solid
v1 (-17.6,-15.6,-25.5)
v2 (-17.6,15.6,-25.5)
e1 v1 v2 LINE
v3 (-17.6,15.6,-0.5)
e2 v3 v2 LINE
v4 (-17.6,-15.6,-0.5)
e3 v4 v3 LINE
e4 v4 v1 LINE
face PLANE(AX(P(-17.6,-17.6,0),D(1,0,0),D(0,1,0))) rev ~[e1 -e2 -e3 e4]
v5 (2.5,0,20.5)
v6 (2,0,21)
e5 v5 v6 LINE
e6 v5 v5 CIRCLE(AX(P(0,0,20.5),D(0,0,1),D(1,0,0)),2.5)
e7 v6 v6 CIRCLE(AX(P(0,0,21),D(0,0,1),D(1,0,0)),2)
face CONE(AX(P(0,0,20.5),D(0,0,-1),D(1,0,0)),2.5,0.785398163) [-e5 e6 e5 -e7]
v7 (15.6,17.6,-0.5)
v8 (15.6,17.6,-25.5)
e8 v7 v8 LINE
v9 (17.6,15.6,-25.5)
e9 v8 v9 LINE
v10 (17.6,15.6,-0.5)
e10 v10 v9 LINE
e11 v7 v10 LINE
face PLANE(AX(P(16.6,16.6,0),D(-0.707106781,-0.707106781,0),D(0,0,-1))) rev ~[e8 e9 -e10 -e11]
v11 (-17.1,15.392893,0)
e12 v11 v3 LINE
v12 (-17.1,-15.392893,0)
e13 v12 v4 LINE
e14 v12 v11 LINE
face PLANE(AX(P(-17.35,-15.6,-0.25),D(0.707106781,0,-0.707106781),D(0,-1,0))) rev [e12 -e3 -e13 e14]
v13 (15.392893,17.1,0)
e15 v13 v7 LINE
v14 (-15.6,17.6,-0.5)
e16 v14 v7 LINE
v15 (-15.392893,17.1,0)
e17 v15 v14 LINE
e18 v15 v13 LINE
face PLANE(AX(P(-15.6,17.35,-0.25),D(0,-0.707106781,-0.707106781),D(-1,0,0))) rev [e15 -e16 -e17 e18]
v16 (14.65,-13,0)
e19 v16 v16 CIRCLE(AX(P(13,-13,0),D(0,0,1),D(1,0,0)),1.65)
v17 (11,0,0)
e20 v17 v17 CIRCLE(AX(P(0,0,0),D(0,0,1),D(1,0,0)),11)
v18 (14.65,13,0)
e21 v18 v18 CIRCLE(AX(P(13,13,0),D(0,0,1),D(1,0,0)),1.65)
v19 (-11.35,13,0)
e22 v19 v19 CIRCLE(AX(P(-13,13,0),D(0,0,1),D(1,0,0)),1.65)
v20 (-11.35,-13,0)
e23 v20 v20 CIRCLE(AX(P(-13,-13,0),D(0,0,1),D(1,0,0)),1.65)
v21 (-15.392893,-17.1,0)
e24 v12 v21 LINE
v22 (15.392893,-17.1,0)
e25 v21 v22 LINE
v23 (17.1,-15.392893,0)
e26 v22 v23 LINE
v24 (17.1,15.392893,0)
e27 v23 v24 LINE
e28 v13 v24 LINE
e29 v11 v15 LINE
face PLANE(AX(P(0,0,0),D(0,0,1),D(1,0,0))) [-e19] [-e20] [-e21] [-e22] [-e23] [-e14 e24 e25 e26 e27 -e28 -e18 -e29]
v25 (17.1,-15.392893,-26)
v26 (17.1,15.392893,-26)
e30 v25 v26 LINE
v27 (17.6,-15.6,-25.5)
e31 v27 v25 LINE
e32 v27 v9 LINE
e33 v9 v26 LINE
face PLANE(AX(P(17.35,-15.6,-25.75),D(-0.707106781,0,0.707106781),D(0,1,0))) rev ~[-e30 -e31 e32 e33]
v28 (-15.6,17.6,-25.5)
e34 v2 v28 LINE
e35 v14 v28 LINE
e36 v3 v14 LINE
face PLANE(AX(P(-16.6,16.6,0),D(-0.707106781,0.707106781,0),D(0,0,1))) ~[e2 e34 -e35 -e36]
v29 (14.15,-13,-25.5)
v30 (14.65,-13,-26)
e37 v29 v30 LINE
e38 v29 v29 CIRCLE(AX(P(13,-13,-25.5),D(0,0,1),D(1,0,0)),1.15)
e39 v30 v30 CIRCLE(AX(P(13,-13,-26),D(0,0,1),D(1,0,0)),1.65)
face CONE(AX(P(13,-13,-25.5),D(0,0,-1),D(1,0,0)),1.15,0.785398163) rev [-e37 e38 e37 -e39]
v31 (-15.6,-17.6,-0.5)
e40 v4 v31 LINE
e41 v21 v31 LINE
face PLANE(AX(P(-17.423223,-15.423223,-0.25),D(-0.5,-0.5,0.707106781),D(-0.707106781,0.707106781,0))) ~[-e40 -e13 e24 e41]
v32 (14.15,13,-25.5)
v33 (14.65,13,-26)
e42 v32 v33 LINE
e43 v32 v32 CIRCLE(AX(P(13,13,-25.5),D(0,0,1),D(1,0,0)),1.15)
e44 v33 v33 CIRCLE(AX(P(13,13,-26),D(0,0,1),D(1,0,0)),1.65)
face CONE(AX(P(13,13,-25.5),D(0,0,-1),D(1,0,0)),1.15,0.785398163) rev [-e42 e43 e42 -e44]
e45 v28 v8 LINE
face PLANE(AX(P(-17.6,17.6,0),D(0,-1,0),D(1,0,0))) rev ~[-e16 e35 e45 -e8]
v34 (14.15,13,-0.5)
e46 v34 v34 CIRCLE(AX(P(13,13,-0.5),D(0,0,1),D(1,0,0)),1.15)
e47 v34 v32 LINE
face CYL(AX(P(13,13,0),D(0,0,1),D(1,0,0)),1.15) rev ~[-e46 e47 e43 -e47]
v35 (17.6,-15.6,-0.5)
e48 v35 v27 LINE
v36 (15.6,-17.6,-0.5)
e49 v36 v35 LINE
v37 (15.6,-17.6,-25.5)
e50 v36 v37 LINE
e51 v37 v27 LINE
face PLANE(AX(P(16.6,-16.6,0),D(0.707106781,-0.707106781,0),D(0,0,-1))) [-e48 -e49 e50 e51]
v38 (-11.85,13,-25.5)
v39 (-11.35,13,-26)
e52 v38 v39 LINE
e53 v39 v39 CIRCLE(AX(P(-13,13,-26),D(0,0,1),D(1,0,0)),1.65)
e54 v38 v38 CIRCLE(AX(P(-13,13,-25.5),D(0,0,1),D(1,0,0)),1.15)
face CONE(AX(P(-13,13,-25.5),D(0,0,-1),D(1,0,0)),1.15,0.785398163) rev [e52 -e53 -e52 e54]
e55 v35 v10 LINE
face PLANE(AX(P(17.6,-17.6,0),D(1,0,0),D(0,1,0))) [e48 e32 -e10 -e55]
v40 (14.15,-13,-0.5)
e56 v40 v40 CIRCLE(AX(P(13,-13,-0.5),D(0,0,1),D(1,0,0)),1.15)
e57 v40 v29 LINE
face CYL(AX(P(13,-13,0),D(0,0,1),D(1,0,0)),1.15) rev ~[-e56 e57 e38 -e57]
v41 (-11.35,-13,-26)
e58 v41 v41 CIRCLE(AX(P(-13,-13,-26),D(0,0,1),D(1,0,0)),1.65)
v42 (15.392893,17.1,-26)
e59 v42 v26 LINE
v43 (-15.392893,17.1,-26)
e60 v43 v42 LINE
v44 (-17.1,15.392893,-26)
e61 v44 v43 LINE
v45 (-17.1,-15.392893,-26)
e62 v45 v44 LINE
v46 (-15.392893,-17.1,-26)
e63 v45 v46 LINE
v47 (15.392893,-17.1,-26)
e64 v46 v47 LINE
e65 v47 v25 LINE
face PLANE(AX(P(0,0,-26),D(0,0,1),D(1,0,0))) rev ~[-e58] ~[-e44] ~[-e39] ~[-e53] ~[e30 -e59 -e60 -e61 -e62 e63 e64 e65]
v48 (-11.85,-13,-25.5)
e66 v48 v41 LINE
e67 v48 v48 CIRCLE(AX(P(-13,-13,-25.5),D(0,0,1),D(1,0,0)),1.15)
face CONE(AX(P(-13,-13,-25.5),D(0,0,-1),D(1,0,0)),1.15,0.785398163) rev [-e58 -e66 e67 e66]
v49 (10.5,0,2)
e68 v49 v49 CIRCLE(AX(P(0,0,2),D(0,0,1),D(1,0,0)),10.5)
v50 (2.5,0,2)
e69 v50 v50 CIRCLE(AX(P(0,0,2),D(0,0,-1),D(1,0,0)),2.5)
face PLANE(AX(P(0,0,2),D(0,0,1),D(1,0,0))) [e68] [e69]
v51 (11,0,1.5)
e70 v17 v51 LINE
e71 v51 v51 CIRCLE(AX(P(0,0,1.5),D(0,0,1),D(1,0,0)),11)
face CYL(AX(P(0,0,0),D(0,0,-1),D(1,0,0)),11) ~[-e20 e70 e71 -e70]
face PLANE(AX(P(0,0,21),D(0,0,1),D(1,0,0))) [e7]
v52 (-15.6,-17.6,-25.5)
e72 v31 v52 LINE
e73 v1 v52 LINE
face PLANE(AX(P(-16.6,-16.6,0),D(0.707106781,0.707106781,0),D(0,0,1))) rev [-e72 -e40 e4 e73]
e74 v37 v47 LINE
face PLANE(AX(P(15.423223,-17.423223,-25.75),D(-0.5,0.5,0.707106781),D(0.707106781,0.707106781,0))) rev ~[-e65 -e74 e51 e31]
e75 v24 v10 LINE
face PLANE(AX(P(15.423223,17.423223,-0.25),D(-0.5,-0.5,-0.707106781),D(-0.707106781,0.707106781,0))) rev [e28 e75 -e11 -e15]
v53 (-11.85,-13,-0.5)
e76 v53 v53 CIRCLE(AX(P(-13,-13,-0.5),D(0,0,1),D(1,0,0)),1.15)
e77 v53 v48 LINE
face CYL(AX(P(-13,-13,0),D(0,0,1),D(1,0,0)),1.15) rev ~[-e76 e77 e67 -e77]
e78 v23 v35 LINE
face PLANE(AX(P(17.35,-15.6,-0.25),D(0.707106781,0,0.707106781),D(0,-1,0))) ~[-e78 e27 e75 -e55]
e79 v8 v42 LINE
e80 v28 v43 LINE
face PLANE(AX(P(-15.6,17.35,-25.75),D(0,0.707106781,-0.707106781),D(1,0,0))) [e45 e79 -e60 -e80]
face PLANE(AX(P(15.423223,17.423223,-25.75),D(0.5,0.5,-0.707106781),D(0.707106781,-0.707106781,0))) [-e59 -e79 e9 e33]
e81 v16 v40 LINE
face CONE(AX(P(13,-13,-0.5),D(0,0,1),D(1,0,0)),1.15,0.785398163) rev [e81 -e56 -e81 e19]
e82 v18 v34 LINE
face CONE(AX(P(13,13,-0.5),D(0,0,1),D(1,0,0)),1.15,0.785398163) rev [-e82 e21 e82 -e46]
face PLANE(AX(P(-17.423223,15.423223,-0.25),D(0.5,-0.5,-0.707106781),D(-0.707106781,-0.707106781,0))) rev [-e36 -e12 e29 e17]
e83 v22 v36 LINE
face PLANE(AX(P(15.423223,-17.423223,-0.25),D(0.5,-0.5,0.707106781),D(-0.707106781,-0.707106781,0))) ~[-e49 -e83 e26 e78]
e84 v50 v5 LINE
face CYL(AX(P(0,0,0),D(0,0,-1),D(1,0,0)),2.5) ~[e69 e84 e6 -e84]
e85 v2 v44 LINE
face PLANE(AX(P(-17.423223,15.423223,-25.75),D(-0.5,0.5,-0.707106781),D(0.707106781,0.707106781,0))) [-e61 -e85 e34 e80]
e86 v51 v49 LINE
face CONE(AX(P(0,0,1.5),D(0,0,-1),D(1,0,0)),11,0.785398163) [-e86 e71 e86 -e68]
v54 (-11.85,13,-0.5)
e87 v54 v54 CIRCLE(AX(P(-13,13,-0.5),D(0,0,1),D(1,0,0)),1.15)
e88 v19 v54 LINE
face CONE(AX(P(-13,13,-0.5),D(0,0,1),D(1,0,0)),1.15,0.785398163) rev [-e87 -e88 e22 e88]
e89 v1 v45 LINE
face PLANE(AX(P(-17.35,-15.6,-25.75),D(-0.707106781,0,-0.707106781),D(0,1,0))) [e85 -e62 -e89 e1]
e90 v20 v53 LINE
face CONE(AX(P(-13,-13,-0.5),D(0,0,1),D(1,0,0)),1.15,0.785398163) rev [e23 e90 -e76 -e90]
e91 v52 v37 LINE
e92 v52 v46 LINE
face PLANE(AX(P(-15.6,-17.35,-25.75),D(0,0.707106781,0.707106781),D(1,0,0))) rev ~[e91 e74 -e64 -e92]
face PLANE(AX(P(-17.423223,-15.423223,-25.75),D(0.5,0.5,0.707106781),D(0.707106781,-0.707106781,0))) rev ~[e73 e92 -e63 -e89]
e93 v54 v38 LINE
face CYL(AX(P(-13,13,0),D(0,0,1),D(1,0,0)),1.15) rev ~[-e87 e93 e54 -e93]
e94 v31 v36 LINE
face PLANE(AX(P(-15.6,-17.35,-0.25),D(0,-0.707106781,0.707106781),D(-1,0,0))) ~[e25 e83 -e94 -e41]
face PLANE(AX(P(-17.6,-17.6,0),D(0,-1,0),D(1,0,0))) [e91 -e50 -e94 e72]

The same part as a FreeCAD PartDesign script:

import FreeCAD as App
import Part
import Sketcher

V = App.Vector
Q = App.Units.Quantity


def edges_at(feature, points):
    """Names of the edges that pass closest to the given points."""
    edges = feature.Shape.Edges
    near = lambda p: min(range(len(edges)), key=lambda i: edges[i].distToShape(Part.Vertex(*p))[0])
    return sorted({f"Edge{near(p) + 1}" for p in points})


def add_polygon(sketch, points):
    """Adds a closed chain of lines whose ends are joined by coincident constraints."""
    first, n = sketch.GeometryCount, len(points)
    for a, b in zip(points, points[1:] + points[:1]):
        sketch.addGeometry(Part.LineSegment(App.Vector(*a, 0), App.Vector(*b, 0)), False)
    for i in range(n):
        sketch.addConstraint(Sketcher.Constraint("Coincident", first + i, 2, first + (i + 1) % n, 1))

doc = App.newDocument("Part")
body = doc.addObject("PartDesign::Body", "Body")

# Sketch on XY plane
sketch1 = body.newObject("Sketcher::SketchObject", "Sketch")
sketch1.AttachmentSupport = (doc.getObject("XY_Plane"), [""])
sketch1.MapMode = "FlatFace"
add_polygon(sketch1, [(-17.6, 17.6), (-17.6, -17.6), (17.6, -17.6), (17.6, 17.6)])  # lines 0-3
sketch1.addConstraint([
    Sketcher.Constraint("Vertical", 0),
    Sketcher.Constraint("Horizontal", 1),
    Sketcher.Constraint("Vertical", 2),
    Sketcher.Constraint("Horizontal", 3),
    Sketcher.Constraint("Symmetric", 0, 2, 2, 2, -1, 1),
    Sketcher.Constraint("Equal", 3, 0),
    Sketcher.Constraint("DistanceX", 1, 1, 1, 2, Q("35.2 mm")),
])
pad1 = body.newObject("PartDesign::Pad", "Pad")
pad1.Profile = sketch1
pad1.Length = 26
pad1.Reversed = True

# Sketch on XY plane
sketch2 = body.newObject("Sketcher::SketchObject", "Sketch001")
sketch2.AttachmentSupport = (doc.getObject("XY_Plane"), [""])
sketch2.MapMode = "FlatFace"
sketch2.addGeometry(Part.Circle(V(0, 0, 0), V(0, 0, 1), 11), False)
sketch2.addConstraint([
    Sketcher.Constraint("Coincident", 0, 3, -1, 1),
    Sketcher.Constraint("Diameter", 0, Q("22 mm")),
])
pad2 = body.newObject("PartDesign::Pad", "Pad001")
pad2.Profile = sketch2
pad2.Length = 2

# Sketch on XY plane
sketch3 = body.newObject("Sketcher::SketchObject", "Sketch002")
sketch3.AttachmentSupport = (doc.getObject("XY_Plane"), [""])
sketch3.MapMode = "FlatFace"
sketch3.addGeometry(Part.Circle(V(0, 0, 0), V(0, 0, 1), 2.5), False)
sketch3.addConstraint([
    Sketcher.Constraint("Coincident", 0, 3, -1, 1),
    Sketcher.Constraint("Diameter", 0, Q("5 mm")),
])
pad3 = body.newObject("PartDesign::Pad", "Pad002")
pad3.Profile = sketch3
pad3.Length = 21

# Sketch on XY plane
sketch4 = body.newObject("Sketcher::SketchObject", "Sketch003")
sketch4.AttachmentSupport = (doc.getObject("XY_Plane"), [""])
sketch4.MapMode = "FlatFace"
sketch4.addGeometry([
    Part.Circle(V(-13, -13, 0), V(0, 0, 1), 1.15),
    Part.Circle(V(13, -13, 0), V(0, 0, 1), 1.15),
    Part.Circle(V(13, 13, 0), V(0, 0, 1), 1.15),
    Part.Circle(V(-13, 13, 0), V(0, 0, 1), 1.15),
], False)
sketch4.addConstraint([
    Sketcher.Constraint("Equal", 0, 1),
    Sketcher.Constraint("Equal", 1, 2),
    Sketcher.Constraint("Equal", 2, 3),
    Sketcher.Constraint("Symmetric", 0, 3, 2, 3, -1, 1),
    Sketcher.Constraint("Symmetric", 1, 3, 3, 3, -1, 1),
    Sketcher.Constraint("Symmetric", 0, 3, 1, 3, -2),
    Sketcher.Constraint("Diameter", 0, Q("2.3 mm")),
    Sketcher.Constraint("DistanceX", 0, 3, -1, 1, Q("13 mm")),
    Sketcher.Constraint("DistanceY", 0, 3, -1, 1, Q("13 mm")),
])
pocket1 = body.newObject("PartDesign::Pocket", "Pocket")
pocket1.Profile = sketch4
pocket1.Type = "ThroughAll"
doc.recompute()

chamfer = body.newObject("PartDesign::Chamfer", "Chamfer")
chamfer.Base = (pocket1, edges_at(pocket1, [
    (17.6, -17.6, -13),
    (-17.6, -17.6, -13),
    (-17.6, 17.6, -13),
    (17.6, 17.6, -13),
]))
chamfer.Size = 2
doc.recompute()

chamfer2 = body.newObject("PartDesign::Chamfer", "Chamfer001")
chamfer2.Base = (chamfer, edges_at(chamfer, [
    (-2.5, 0, 21),
    (-11, 0, 2),
    (11.85, 13, 0),
    (11.85, -13, 0),
    (-14.15, -13, 0),
    (-14.15, 13, 0),
    (0, 17.6, 0),
    (16.6, 16.6, 0),
    (17.6, 0, 0),
    (16.6, -16.6, 0),
    (0, -17.6, 0),
    (-17.6, 0, 0),
    (17.6, 0, -26),
    (0, -17.6, -26),
    (11.85, -13, -26),
    (16.6, -16.6, -26),
    (-14.15, -13, -26),
    (11.85, 13, -26),
    (-14.15, 13, -26),
    (0, 17.6, -26),
    (-16.6, 16.6, -26),
    (16.6, 16.6, -26),
    (-17.6, 0, -26),
    (-16.6, -16.6, -26),
    (-16.6, 16.6, 0),
    (-16.6, -16.6, 0),
]))
chamfer2.Size = 0.5

doc.recompute()
